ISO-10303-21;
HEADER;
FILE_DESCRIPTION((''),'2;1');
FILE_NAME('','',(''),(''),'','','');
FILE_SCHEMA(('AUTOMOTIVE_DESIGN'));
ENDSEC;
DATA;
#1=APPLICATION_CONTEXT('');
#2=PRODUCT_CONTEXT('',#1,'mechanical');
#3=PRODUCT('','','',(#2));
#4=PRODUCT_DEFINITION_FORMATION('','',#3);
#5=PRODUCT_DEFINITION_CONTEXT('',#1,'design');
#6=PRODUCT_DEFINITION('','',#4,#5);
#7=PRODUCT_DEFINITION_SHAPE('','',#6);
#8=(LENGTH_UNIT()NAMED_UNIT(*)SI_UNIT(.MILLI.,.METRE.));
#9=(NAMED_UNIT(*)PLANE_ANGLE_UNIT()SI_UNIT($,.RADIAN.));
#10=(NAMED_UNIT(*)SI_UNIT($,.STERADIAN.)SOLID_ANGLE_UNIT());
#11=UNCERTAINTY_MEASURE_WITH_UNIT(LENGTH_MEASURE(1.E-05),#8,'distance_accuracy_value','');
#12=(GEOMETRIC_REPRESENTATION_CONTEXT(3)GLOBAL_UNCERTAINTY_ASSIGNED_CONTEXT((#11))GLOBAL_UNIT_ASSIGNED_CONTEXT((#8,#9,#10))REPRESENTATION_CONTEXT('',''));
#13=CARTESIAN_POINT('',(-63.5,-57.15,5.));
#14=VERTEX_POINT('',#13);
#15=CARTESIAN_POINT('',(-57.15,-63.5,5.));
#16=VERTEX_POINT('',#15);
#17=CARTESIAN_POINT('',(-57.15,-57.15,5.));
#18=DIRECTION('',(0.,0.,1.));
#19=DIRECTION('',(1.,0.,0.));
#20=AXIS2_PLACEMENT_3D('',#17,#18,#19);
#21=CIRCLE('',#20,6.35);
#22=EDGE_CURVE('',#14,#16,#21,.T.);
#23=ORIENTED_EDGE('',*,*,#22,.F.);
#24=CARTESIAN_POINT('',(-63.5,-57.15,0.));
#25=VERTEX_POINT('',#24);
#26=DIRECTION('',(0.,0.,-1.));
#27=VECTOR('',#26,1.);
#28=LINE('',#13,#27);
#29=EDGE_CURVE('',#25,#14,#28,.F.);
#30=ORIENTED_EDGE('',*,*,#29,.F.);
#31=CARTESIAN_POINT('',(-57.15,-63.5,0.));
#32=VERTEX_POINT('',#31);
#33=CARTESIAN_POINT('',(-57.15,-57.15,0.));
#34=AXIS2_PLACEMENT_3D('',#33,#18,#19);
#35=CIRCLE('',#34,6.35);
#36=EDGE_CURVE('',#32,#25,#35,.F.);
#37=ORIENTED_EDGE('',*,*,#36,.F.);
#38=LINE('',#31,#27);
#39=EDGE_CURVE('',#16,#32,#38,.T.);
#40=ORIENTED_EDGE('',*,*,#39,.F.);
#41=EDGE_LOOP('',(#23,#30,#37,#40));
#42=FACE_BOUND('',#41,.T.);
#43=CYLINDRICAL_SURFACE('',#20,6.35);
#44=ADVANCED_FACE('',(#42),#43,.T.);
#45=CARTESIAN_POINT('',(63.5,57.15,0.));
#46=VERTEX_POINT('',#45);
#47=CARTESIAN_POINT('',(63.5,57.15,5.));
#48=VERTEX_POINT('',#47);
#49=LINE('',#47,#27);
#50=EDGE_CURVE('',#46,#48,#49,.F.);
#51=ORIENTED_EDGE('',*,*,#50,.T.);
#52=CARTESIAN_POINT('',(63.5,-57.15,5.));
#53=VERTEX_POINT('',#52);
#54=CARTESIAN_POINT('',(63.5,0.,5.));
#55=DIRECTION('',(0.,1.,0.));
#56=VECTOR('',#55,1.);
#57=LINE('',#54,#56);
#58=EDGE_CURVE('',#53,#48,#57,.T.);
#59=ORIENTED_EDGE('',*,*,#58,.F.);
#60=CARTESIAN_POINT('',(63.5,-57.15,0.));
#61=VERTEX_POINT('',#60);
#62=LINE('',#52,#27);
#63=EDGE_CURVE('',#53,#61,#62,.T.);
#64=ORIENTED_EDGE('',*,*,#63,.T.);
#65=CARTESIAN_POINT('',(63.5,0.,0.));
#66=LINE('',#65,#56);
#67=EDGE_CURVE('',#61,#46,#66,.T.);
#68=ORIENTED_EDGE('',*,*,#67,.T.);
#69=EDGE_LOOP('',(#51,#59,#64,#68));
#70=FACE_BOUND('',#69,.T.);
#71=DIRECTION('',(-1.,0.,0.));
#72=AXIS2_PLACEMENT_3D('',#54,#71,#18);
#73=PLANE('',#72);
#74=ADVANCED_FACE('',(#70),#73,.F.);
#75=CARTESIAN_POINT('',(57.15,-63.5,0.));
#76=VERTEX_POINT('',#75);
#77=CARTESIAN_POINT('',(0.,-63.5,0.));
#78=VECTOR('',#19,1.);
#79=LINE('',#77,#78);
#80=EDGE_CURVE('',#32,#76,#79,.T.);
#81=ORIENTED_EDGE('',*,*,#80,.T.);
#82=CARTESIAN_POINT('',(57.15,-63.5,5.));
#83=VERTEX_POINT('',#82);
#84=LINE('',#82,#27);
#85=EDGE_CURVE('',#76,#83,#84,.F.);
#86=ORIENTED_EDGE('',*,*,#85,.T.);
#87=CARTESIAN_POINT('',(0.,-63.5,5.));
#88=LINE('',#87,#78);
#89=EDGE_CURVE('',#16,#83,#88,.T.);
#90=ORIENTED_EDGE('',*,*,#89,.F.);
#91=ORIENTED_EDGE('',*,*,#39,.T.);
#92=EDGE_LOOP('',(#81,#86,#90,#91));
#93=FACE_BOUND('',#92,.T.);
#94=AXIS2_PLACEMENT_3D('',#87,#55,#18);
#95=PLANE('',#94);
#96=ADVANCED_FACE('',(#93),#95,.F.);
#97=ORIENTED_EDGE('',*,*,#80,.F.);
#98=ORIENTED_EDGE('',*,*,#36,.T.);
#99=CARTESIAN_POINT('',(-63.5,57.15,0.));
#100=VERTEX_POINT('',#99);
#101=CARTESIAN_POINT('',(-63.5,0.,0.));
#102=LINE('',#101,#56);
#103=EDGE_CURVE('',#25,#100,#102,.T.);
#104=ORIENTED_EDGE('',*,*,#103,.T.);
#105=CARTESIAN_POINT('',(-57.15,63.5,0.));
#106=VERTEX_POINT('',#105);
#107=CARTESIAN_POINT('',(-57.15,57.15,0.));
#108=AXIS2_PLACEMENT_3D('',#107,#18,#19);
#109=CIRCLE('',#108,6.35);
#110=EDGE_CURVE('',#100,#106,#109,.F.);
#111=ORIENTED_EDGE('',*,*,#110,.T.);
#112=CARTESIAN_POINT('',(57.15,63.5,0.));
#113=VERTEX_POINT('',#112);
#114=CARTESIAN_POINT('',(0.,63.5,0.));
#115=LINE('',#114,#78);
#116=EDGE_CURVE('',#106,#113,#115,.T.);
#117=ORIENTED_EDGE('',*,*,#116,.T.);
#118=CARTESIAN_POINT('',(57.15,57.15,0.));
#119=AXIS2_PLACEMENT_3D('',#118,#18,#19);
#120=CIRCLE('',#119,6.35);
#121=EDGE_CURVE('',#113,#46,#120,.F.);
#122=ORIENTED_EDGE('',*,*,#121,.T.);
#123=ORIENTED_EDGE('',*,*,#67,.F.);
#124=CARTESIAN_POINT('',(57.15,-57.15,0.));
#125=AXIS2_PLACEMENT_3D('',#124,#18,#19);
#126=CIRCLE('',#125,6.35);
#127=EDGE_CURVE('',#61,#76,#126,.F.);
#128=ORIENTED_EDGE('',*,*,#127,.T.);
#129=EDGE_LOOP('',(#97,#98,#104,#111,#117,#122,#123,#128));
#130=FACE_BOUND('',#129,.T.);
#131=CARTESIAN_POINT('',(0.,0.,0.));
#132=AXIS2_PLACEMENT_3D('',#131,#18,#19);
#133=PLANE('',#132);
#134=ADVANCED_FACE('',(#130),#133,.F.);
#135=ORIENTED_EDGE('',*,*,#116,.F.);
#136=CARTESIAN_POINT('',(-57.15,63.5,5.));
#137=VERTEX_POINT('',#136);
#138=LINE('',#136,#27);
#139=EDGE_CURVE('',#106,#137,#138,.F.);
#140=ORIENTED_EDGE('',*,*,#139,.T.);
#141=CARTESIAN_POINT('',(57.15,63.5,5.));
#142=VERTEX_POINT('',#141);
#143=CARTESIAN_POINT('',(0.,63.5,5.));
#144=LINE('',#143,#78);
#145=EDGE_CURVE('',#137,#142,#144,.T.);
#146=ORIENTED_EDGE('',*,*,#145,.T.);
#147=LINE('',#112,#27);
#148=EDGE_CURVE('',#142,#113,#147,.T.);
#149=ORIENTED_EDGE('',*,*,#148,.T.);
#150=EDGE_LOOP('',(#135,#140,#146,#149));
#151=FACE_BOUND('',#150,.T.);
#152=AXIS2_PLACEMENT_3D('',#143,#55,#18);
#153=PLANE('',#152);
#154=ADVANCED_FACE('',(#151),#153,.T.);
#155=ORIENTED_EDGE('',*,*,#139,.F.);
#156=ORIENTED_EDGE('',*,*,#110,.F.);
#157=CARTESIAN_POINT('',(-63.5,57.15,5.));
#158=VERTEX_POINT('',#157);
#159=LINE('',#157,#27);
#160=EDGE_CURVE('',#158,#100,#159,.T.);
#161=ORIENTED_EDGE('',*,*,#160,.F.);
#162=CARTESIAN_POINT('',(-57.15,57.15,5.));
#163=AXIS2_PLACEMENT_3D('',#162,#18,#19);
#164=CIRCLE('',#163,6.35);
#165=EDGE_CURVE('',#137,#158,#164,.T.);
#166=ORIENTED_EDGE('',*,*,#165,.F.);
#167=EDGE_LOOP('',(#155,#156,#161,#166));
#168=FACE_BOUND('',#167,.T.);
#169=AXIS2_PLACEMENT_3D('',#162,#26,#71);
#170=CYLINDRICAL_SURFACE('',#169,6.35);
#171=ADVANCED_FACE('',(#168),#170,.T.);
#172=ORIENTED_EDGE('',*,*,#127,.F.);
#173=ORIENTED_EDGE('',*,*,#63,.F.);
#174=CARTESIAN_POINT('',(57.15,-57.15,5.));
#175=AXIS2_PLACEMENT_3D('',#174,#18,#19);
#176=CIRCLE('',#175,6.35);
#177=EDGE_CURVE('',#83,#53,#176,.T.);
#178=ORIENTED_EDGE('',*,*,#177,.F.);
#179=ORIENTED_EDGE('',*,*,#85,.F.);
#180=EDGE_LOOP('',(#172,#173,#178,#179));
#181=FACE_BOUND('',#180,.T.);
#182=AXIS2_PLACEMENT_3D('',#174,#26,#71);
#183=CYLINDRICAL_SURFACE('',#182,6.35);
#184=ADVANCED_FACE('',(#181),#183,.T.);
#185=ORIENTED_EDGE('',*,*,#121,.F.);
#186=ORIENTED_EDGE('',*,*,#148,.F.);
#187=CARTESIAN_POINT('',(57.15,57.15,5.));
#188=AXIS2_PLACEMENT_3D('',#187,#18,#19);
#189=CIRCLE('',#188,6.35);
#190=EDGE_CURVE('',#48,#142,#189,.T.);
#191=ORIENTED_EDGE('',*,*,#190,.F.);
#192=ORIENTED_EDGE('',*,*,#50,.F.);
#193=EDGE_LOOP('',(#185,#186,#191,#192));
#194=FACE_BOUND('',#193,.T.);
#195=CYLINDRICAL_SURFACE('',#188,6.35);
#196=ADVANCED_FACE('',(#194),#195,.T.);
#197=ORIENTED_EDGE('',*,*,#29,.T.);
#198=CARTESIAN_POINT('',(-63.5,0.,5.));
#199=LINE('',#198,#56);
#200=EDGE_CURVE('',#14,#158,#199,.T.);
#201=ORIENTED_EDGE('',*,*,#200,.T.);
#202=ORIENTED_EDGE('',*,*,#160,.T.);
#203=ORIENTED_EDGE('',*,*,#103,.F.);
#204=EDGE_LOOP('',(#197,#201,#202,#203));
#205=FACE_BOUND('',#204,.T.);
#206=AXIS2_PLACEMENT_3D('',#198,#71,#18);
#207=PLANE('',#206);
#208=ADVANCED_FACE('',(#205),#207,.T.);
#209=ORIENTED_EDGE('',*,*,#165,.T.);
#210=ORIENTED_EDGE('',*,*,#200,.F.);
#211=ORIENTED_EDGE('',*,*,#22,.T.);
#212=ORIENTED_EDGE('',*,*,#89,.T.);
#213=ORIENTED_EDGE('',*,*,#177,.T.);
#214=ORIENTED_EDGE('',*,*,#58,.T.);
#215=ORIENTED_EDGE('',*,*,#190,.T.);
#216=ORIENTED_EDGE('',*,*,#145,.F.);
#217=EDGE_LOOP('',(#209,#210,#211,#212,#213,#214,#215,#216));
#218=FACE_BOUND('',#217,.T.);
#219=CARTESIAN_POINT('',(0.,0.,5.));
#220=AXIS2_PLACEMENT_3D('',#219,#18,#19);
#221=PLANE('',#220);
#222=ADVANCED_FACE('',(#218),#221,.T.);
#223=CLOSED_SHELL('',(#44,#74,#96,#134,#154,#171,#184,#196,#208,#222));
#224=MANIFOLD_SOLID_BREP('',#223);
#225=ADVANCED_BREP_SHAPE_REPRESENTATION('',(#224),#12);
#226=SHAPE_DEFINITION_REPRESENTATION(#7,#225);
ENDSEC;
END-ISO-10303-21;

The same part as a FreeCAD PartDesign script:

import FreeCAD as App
import Part
import Sketcher
Q = App.Units.Quantity


def edges_at(feature, points):
    """Names of the edges that pass closest to the given points."""
    edges = feature.Shape.Edges
    near = lambda p: min(range(len(edges)), key=lambda i: edges[i].distToShape(Part.Vertex(*p))[0])
    return sorted({f"Edge{near(p) + 1}" for p in points})

doc = App.newDocument("Part")
body = doc.addObject("PartDesign::Body", "Body")

# Sketch on XY plane
sketch1 = doc.addObject("Sketcher::SketchObject", "Sketch")
body.addObject(sketch1)
sketch1.AttachmentSupport = (doc.XY_Plane, [""])
sketch1.MapMode = "FlatFace"
sketch1.addGeometry([
    Part.LineSegment(App.Vector(-64, 64, 0), App.Vector(-64, -64, 0)),
    Part.LineSegment(App.Vector(-64, -64, 0), App.Vector(64, -64, 0)),
    Part.LineSegment(App.Vector(64, -64, 0), App.Vector(64, 64, 0)),
    Part.LineSegment(App.Vector(64, 64, 0), App.Vector(-64, 64, 0)),
], False)
sketch1.addConstraint([
    Sketcher.Constraint("Coincident", 0, 2, 1, 1),
    Sketcher.Constraint("Coincident", 1, 2, 2, 1),
    Sketcher.Constraint("Coincident", 2, 2, 3, 1),
    Sketcher.Constraint("Coincident", 3, 2, 0, 1),
    Sketcher.Constraint("Vertical", 0),
    Sketcher.Constraint("Horizontal", 1),
    Sketcher.Constraint("Vertical", 2),
    Sketcher.Constraint("Horizontal", 3),
    Sketcher.Constraint("Symmetric", 0, 2, 2, 2, -1, 1),
    Sketcher.Constraint("Equal", 3, 0),
    Sketcher.Constraint("DistanceX", 1, 1, 1, 2, Q("5 in")),
])
pad1 = doc.addObject("PartDesign::Pad", "Pad")
body.addObject(pad1)
pad1.Profile = sketch1
pad1.Length = 5
doc.recompute()

fillet = doc.addObject("PartDesign::Fillet", "Fillet")
body.addObject(fillet)
fillet.Base = (pad1, edges_at(pad1, [
    (-63.5, 63.5, 2.5),
    (63.5, 63.5, 2.5),
    (63.5, -63.5, 2.5),
    (-63.5, -63.5, 2.5),
]))
fillet.Radius = Q("0.25 in")

doc.recompute()
